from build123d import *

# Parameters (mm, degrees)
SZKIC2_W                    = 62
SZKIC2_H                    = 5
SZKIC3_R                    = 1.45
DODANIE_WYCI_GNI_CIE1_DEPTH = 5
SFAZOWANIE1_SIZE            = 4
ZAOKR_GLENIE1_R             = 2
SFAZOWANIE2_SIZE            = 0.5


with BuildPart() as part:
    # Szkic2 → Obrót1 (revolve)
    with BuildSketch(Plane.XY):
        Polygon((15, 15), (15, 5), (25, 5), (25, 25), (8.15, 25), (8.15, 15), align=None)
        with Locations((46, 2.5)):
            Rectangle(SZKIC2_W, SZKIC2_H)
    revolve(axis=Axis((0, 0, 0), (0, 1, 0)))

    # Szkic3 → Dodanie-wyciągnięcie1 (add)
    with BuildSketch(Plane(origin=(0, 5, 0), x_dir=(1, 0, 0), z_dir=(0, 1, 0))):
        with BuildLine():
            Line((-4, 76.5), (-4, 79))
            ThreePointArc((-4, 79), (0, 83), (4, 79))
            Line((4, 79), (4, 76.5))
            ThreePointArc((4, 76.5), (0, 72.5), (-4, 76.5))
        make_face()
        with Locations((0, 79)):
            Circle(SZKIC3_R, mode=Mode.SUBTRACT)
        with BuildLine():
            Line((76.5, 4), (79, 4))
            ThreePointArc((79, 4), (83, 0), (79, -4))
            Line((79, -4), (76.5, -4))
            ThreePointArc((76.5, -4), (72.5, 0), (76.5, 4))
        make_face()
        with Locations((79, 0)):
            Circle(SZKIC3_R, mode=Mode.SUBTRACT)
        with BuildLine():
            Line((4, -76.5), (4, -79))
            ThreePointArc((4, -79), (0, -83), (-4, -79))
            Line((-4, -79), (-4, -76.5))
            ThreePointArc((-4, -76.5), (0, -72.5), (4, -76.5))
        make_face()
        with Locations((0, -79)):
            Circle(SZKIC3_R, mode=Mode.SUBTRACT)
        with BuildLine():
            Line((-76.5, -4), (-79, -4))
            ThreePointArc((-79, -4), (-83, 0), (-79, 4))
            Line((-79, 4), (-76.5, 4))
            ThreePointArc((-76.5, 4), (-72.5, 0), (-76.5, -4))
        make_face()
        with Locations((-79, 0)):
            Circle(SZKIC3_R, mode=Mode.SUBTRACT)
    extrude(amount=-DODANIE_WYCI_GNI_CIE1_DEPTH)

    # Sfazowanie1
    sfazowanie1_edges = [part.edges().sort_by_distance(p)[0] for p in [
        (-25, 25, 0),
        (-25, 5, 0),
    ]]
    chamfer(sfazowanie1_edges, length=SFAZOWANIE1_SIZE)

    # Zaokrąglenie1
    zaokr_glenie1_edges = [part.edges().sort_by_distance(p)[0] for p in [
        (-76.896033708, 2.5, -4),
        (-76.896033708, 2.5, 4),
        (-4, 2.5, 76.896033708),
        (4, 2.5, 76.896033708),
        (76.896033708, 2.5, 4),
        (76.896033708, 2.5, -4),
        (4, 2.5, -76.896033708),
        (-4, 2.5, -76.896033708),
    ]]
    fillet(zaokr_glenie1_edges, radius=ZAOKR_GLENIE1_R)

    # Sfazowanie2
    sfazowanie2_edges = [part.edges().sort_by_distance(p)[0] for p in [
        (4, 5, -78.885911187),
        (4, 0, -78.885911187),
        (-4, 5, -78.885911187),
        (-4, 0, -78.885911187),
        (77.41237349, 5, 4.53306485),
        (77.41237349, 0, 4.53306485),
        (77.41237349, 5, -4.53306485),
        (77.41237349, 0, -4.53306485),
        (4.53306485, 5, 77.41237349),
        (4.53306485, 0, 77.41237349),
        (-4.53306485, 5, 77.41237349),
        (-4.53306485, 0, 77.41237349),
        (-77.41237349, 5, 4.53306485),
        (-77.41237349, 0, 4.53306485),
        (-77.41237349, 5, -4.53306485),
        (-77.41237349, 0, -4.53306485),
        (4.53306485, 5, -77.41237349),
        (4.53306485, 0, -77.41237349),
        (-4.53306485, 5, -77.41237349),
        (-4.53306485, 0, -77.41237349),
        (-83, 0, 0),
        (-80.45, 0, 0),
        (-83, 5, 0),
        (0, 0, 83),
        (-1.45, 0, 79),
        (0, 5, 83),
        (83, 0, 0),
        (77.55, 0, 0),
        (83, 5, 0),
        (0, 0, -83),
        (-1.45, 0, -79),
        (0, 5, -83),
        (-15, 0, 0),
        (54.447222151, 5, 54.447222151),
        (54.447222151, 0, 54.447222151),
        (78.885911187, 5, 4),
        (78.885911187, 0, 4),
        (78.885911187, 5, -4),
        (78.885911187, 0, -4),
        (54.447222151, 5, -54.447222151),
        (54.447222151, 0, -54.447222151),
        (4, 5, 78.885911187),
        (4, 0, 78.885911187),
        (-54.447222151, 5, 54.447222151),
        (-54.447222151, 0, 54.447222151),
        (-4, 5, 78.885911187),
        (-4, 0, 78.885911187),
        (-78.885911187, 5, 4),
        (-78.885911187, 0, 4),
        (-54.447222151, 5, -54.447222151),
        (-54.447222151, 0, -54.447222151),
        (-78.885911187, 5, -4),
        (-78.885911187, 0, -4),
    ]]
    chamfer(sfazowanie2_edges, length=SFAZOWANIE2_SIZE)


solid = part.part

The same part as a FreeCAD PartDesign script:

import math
import FreeCAD as App
import Part
import Sketcher
Q = App.Units.Quantity


def edges_at(feature, points):
    """Names of the edges that pass closest to the given points."""
    edges = feature.Shape.Edges
    near = lambda p: min(range(len(edges)), key=lambda i: edges[i].distToShape(Part.Vertex(*p))[0])
    return sorted({f"Edge{near(p) + 1}" for p in points})

doc = App.newDocument("Part")
body = doc.addObject("PartDesign::Body", "Body")

sketch1 = body.newObject("Sketcher::SketchObject", "Sketch")
sketch1.AttachmentSupport = (doc.getObject("XY_Plane"), [""])
sketch1.MapMode = "FlatFace"
sketch1.addGeometry([
    Part.LineSegment(App.Vector(15, 15, 0), App.Vector(15, 0, 0)),
    Part.LineSegment(App.Vector(15, 0, 0), App.Vector(77, 0, 0)),
    Part.LineSegment(App.Vector(77, 0, 0), App.Vector(77, 5, 0)),
    Part.LineSegment(App.Vector(77, 5, 0), App.Vector(25, 5, 0)),
    Part.LineSegment(App.Vector(25, 5, 0), App.Vector(25, 25, 0)),
    Part.LineSegment(App.Vector(25, 25, 0), App.Vector(8.15, 25, 0)),
    Part.LineSegment(App.Vector(8.15, 25, 0), App.Vector(8.15, 15, 0)),
    Part.LineSegment(App.Vector(8.15, 15, 0), App.Vector(15, 15, 0)),
], False)
sketch1.addConstraint([
    Sketcher.Constraint("Coincident", 0, 2, 1, 1),
    Sketcher.Constraint("Coincident", 1, 2, 2, 1),
    Sketcher.Constraint("Coincident", 2, 2, 3, 1),
    Sketcher.Constraint("Coincident", 3, 2, 4, 1),
    Sketcher.Constraint("Coincident", 4, 2, 5, 1),
    Sketcher.Constraint("Coincident", 5, 2, 6, 1),
    Sketcher.Constraint("Coincident", 6, 2, 7, 1),
    Sketcher.Constraint("Coincident", 7, 2, 0, 1),
    Sketcher.Constraint("Vertical", 0),
    Sketcher.Constraint("Horizontal", 1),
    Sketcher.Constraint("Vertical", 2),
    Sketcher.Constraint("Horizontal", 3),
    Sketcher.Constraint("Vertical", 4),
    Sketcher.Constraint("Horizontal", 5),
    Sketcher.Constraint("Vertical", 6),
    Sketcher.Constraint("Horizontal", 7),
    Sketcher.Constraint("PointOnObject", 0, 2, -1),
    Sketcher.Constraint("DistanceX", 1, 1, 1, 2, Q("62 mm")),
    Sketcher.Constraint("DistanceX", 3, 2, 3, 1, Q("52 mm")),
    Sketcher.Constraint("DistanceY", 0, 2, 0, 1, Q("15 mm")),
    Sketcher.Constraint("DistanceY", 2, 1, 2, 2, Q("5 mm")),
    Sketcher.Constraint("DistanceY", 4, 1, 4, 2, Q("20 mm")),
    Sketcher.Constraint("DistanceX", -1, 1, 0, 2, Q("15 mm")),
    Sketcher.Constraint("DistanceX", 5, 2, 5, 1, Q("16.85 mm")),
])
revolution = body.newObject("PartDesign::Revolution", "Revolution")
revolution.Profile = sketch1
revolution.ReferenceAxis = (sketch1, ["V_Axis"])
revolution.Angle = 360

sketch2 = body.newObject("Sketcher::SketchObject", "Sketch001")
sketch2.AttachmentSupport = (doc.getObject("XZ_Plane"), [""])
sketch2.MapMode = "FlatFace"
sketch2.AttachmentOffset = App.Placement(App.Vector(0, 0, -5), App.Rotation())
sketch2.addGeometry([
    Part.LineSegment(App.Vector(-4, -79, 0), App.Vector(-4, -76.5, 0)),
    Part.ArcOfCircle(Part.Circle(App.Vector(0, -76.5, 0), App.Vector(0, 0, 1), 4), math.radians(0), math.radians(180)),
    Part.LineSegment(App.Vector(4, -76.5, 0), App.Vector(4, -79, 0)),
    Part.ArcOfCircle(Part.Circle(App.Vector(0, -79, 0), App.Vector(0, 0, 1), 4), math.radians(180), math.radians(360)),
    Part.Circle(App.Vector(0, -79, 0), App.Vector(0, 0, 1), 1.45),
    Part.LineSegment(App.Vector(79, -4, 0), App.Vector(76.5, -4, 0)),
    Part.ArcOfCircle(Part.Circle(App.Vector(76.5, 0, 0), App.Vector(0, 0, 1), 4), math.radians(90), math.radians(270)),
    Part.LineSegment(App.Vector(76.5, 4, 0), App.Vector(79, 4, 0)),
    Part.ArcOfCircle(Part.Circle(App.Vector(79, 0, 0), App.Vector(0, 0, 1), 4), math.radians(-90), math.radians(90)),
    Part.Circle(App.Vector(79, 0, 0), App.Vector(0, 0, 1), 1.45),
    Part.LineSegment(App.Vector(4, 79, 0), App.Vector(4, 76.5, 0)),
    Part.ArcOfCircle(Part.Circle(App.Vector(0, 76.5, 0), App.Vector(0, 0, 1), 4), math.radians(180), math.radians(360)),
    Part.LineSegment(App.Vector(-4, 76.5, 0), App.Vector(-4, 79, 0)),
    Part.ArcOfCircle(Part.Circle(App.Vector(0, 79, 0), App.Vector(0, 0, 1), 4), math.radians(0), math.radians(180)),
    Part.Circle(App.Vector(0, 79, 0), App.Vector(0, 0, 1), 1.45),
    Part.LineSegment(App.Vector(-79, 4, 0), App.Vector(-76.5, 4, 0)),
    Part.ArcOfCircle(Part.Circle(App.Vector(-76.5, 0, 0), App.Vector(0, 0, 1), 4), math.radians(-90), math.radians(90)),
    Part.LineSegment(App.Vector(-76.5, -4, 0), App.Vector(-79, -4, 0)),
    Part.ArcOfCircle(Part.Circle(App.Vector(-79, 0, 0), App.Vector(0, 0, 1), 4), math.radians(90), math.radians(270)),
    Part.Circle(App.Vector(-79, 0, 0), App.Vector(0, 0, 1), 1.45),
], False)
sketch2.addConstraint([
    Sketcher.Constraint("Tangent", 0, 2, 1, 2),
    Sketcher.Constraint("Tangent", 1, 1, 2, 1),
    Sketcher.Constraint("Tangent", 2, 2, 3, 2),
    Sketcher.Constraint("Tangent", 3, 1, 0, 1),
    Sketcher.Constraint("Tangent", 5, 2, 6, 2),
    Sketcher.Constraint("Tangent", 6, 1, 7, 1),
    Sketcher.Constraint("Tangent", 7, 2, 8, 2),
    Sketcher.Constraint("Tangent", 8, 1, 5, 1),
    Sketcher.Constraint("Tangent", 10, 2, 11, 2),
    Sketcher.Constraint("Tangent", 11, 1, 12, 1),
    Sketcher.Constraint("Tangent", 12, 2, 13, 2),
    Sketcher.Constraint("Tangent", 13, 1, 10, 1),
    Sketcher.Constraint("Tangent", 15, 2, 16, 2),
    Sketcher.Constraint("Tangent", 16, 1, 17, 1),
    Sketcher.Constraint("Tangent", 17, 2, 18, 2),
    Sketcher.Constraint("Tangent", 18, 1, 15, 1),
    Sketcher.Constraint("Vertical", 0),
    Sketcher.Constraint("Vertical", 2),
    Sketcher.Constraint("Horizontal", 5),
    Sketcher.Constraint("Horizontal", 7),
    Sketcher.Constraint("Vertical", 10),
    Sketcher.Constraint("Vertical", 12),
    Sketcher.Constraint("Horizontal", 15),
    Sketcher.Constraint("Horizontal", 17),
    Sketcher.Constraint("Coincident", 4, 3, 3, 3),
    Sketcher.Constraint("Coincident", 9, 3, 8, 3),
    Sketcher.Constraint("Coincident", 14, 3, 13, 3),
    Sketcher.Constraint("Coincident", 19, 3, 18, 3),
    Sketcher.Constraint("Equal", 3, 6),
    Sketcher.Constraint("Equal", 4, 9),
    Sketcher.Constraint("Equal", 8, 11),
    Sketcher.Constraint("Equal", 9, 14),
    Sketcher.Constraint("Equal", 13, 16),
    Sketcher.Constraint("Equal", 14, 19),
    Sketcher.Constraint("Symmetric", 1, 3, 11, 3, -1, 1),
    Sketcher.Constraint("Symmetric", 6, 3, 16, 3, -1, 1),
    Sketcher.Constraint("Symmetric", 8, 3, 18, 3, -2),
    Sketcher.Constraint("Symmetric", 3, 3, 13, 3, -1),
    Sketcher.Constraint("Equal", 17, 0),
    Sketcher.Constraint("Radius", 1, Q("4 mm")),
    Sketcher.Constraint("Diameter", 4, Q("2.9 mm")),
    Sketcher.Constraint("DistanceX", 5, 2, 5, 1, Q("2.5 mm")),
    Sketcher.Constraint("DistanceY", 3, 3, -1, 1, Q("79 mm")),
    Sketcher.Constraint("DistanceX", -1, 1, 8, 3, Q("79 mm")),
])
pad1 = body.newObject("PartDesign::Pad", "Pad")
pad1.Profile = sketch2
pad1.Length = 5
doc.recompute()

chamfer = body.newObject("PartDesign::Chamfer", "Chamfer")
chamfer.Base = (pad1, edges_at(pad1, [(-25, 25, 0), (-25, 5, 0)]))
chamfer.Size = 4
doc.recompute()

fillet = body.newObject("PartDesign::Fillet", "Fillet")
fillet.Base = (chamfer, edges_at(chamfer, [
    (-76.896, 2.5, -4),
    (-76.896, 2.5, 4),
    (-4, 2.5, 76.896),
    (4, 2.5, 76.896),
    (76.896, 2.5, 4),
    (76.896, 2.5, -4),
    (4, 2.5, -76.896),
    (-4, 2.5, -76.896),
]))
fillet.Radius = 2
doc.recompute()

chamfer2 = body.newObject("PartDesign::Chamfer", "Chamfer001")
chamfer2.Base = (fillet, edges_at(fillet, [
    (4, 5, -78.886),
    (4, 0, -78.886),
    (-4, 5, -78.886),
    (-4, 0, -78.886),
    (77.412, 5, 4.533),
    (77.412, 0, 4.533),
    (77.412, 5, -4.533),
    (77.412, 0, -4.533),
    (4.533, 5, 77.412),
    (4.533, 0, 77.412),
    (-4.533, 5, 77.412),
    (-4.533, 0, 77.412),
    (-77.412, 5, 4.533),
    (-77.412, 0, 4.533),
    (-77.412, 5, -4.533),
    (-77.412, 0, -4.533),
    (4.533, 5, -77.412),
    (4.533, 0, -77.412),
    (-4.533, 5, -77.412),
    (-4.533, 0, -77.412),
    (-83, 0, 0),
    (-80.45, 0, 0),
    (-83, 5, 0),
    (0, 0, 83),
    (-1.45, 0, 79),
    (0, 5, 83),
    (83, 0, 0),
    (77.55, 0, 0),
    (83, 5, 0),
    (0, 0, -83),
    (-1.45, 0, -79),
    (0, 5, -83),
    (-15, 0, 0),
    (54.447, 5, 54.447),
    (54.447, 0, 54.447),
    (78.886, 5, 4),
    (78.886, 0, 4),
    (78.886, 5, -4),
    (78.886, 0, -4),
    (54.447, 5, -54.447),
    (54.447, 0, -54.447),
    (4, 5, 78.886),
    (4, 0, 78.886),
    (-54.447, 5, 54.447),
    (-54.447, 0, 54.447),
    (-4, 5, 78.886),
    (-4, 0, 78.886),
    (-78.886, 5, 4),
    (-78.886, 0, 4),
    (-54.447, 5, -54.447),
    (-54.447, 0, -54.447),
    (-78.886, 5, -4),
    (-78.886, 0, -4),
]))
chamfer2.Size = 0.5

doc.recompute()
